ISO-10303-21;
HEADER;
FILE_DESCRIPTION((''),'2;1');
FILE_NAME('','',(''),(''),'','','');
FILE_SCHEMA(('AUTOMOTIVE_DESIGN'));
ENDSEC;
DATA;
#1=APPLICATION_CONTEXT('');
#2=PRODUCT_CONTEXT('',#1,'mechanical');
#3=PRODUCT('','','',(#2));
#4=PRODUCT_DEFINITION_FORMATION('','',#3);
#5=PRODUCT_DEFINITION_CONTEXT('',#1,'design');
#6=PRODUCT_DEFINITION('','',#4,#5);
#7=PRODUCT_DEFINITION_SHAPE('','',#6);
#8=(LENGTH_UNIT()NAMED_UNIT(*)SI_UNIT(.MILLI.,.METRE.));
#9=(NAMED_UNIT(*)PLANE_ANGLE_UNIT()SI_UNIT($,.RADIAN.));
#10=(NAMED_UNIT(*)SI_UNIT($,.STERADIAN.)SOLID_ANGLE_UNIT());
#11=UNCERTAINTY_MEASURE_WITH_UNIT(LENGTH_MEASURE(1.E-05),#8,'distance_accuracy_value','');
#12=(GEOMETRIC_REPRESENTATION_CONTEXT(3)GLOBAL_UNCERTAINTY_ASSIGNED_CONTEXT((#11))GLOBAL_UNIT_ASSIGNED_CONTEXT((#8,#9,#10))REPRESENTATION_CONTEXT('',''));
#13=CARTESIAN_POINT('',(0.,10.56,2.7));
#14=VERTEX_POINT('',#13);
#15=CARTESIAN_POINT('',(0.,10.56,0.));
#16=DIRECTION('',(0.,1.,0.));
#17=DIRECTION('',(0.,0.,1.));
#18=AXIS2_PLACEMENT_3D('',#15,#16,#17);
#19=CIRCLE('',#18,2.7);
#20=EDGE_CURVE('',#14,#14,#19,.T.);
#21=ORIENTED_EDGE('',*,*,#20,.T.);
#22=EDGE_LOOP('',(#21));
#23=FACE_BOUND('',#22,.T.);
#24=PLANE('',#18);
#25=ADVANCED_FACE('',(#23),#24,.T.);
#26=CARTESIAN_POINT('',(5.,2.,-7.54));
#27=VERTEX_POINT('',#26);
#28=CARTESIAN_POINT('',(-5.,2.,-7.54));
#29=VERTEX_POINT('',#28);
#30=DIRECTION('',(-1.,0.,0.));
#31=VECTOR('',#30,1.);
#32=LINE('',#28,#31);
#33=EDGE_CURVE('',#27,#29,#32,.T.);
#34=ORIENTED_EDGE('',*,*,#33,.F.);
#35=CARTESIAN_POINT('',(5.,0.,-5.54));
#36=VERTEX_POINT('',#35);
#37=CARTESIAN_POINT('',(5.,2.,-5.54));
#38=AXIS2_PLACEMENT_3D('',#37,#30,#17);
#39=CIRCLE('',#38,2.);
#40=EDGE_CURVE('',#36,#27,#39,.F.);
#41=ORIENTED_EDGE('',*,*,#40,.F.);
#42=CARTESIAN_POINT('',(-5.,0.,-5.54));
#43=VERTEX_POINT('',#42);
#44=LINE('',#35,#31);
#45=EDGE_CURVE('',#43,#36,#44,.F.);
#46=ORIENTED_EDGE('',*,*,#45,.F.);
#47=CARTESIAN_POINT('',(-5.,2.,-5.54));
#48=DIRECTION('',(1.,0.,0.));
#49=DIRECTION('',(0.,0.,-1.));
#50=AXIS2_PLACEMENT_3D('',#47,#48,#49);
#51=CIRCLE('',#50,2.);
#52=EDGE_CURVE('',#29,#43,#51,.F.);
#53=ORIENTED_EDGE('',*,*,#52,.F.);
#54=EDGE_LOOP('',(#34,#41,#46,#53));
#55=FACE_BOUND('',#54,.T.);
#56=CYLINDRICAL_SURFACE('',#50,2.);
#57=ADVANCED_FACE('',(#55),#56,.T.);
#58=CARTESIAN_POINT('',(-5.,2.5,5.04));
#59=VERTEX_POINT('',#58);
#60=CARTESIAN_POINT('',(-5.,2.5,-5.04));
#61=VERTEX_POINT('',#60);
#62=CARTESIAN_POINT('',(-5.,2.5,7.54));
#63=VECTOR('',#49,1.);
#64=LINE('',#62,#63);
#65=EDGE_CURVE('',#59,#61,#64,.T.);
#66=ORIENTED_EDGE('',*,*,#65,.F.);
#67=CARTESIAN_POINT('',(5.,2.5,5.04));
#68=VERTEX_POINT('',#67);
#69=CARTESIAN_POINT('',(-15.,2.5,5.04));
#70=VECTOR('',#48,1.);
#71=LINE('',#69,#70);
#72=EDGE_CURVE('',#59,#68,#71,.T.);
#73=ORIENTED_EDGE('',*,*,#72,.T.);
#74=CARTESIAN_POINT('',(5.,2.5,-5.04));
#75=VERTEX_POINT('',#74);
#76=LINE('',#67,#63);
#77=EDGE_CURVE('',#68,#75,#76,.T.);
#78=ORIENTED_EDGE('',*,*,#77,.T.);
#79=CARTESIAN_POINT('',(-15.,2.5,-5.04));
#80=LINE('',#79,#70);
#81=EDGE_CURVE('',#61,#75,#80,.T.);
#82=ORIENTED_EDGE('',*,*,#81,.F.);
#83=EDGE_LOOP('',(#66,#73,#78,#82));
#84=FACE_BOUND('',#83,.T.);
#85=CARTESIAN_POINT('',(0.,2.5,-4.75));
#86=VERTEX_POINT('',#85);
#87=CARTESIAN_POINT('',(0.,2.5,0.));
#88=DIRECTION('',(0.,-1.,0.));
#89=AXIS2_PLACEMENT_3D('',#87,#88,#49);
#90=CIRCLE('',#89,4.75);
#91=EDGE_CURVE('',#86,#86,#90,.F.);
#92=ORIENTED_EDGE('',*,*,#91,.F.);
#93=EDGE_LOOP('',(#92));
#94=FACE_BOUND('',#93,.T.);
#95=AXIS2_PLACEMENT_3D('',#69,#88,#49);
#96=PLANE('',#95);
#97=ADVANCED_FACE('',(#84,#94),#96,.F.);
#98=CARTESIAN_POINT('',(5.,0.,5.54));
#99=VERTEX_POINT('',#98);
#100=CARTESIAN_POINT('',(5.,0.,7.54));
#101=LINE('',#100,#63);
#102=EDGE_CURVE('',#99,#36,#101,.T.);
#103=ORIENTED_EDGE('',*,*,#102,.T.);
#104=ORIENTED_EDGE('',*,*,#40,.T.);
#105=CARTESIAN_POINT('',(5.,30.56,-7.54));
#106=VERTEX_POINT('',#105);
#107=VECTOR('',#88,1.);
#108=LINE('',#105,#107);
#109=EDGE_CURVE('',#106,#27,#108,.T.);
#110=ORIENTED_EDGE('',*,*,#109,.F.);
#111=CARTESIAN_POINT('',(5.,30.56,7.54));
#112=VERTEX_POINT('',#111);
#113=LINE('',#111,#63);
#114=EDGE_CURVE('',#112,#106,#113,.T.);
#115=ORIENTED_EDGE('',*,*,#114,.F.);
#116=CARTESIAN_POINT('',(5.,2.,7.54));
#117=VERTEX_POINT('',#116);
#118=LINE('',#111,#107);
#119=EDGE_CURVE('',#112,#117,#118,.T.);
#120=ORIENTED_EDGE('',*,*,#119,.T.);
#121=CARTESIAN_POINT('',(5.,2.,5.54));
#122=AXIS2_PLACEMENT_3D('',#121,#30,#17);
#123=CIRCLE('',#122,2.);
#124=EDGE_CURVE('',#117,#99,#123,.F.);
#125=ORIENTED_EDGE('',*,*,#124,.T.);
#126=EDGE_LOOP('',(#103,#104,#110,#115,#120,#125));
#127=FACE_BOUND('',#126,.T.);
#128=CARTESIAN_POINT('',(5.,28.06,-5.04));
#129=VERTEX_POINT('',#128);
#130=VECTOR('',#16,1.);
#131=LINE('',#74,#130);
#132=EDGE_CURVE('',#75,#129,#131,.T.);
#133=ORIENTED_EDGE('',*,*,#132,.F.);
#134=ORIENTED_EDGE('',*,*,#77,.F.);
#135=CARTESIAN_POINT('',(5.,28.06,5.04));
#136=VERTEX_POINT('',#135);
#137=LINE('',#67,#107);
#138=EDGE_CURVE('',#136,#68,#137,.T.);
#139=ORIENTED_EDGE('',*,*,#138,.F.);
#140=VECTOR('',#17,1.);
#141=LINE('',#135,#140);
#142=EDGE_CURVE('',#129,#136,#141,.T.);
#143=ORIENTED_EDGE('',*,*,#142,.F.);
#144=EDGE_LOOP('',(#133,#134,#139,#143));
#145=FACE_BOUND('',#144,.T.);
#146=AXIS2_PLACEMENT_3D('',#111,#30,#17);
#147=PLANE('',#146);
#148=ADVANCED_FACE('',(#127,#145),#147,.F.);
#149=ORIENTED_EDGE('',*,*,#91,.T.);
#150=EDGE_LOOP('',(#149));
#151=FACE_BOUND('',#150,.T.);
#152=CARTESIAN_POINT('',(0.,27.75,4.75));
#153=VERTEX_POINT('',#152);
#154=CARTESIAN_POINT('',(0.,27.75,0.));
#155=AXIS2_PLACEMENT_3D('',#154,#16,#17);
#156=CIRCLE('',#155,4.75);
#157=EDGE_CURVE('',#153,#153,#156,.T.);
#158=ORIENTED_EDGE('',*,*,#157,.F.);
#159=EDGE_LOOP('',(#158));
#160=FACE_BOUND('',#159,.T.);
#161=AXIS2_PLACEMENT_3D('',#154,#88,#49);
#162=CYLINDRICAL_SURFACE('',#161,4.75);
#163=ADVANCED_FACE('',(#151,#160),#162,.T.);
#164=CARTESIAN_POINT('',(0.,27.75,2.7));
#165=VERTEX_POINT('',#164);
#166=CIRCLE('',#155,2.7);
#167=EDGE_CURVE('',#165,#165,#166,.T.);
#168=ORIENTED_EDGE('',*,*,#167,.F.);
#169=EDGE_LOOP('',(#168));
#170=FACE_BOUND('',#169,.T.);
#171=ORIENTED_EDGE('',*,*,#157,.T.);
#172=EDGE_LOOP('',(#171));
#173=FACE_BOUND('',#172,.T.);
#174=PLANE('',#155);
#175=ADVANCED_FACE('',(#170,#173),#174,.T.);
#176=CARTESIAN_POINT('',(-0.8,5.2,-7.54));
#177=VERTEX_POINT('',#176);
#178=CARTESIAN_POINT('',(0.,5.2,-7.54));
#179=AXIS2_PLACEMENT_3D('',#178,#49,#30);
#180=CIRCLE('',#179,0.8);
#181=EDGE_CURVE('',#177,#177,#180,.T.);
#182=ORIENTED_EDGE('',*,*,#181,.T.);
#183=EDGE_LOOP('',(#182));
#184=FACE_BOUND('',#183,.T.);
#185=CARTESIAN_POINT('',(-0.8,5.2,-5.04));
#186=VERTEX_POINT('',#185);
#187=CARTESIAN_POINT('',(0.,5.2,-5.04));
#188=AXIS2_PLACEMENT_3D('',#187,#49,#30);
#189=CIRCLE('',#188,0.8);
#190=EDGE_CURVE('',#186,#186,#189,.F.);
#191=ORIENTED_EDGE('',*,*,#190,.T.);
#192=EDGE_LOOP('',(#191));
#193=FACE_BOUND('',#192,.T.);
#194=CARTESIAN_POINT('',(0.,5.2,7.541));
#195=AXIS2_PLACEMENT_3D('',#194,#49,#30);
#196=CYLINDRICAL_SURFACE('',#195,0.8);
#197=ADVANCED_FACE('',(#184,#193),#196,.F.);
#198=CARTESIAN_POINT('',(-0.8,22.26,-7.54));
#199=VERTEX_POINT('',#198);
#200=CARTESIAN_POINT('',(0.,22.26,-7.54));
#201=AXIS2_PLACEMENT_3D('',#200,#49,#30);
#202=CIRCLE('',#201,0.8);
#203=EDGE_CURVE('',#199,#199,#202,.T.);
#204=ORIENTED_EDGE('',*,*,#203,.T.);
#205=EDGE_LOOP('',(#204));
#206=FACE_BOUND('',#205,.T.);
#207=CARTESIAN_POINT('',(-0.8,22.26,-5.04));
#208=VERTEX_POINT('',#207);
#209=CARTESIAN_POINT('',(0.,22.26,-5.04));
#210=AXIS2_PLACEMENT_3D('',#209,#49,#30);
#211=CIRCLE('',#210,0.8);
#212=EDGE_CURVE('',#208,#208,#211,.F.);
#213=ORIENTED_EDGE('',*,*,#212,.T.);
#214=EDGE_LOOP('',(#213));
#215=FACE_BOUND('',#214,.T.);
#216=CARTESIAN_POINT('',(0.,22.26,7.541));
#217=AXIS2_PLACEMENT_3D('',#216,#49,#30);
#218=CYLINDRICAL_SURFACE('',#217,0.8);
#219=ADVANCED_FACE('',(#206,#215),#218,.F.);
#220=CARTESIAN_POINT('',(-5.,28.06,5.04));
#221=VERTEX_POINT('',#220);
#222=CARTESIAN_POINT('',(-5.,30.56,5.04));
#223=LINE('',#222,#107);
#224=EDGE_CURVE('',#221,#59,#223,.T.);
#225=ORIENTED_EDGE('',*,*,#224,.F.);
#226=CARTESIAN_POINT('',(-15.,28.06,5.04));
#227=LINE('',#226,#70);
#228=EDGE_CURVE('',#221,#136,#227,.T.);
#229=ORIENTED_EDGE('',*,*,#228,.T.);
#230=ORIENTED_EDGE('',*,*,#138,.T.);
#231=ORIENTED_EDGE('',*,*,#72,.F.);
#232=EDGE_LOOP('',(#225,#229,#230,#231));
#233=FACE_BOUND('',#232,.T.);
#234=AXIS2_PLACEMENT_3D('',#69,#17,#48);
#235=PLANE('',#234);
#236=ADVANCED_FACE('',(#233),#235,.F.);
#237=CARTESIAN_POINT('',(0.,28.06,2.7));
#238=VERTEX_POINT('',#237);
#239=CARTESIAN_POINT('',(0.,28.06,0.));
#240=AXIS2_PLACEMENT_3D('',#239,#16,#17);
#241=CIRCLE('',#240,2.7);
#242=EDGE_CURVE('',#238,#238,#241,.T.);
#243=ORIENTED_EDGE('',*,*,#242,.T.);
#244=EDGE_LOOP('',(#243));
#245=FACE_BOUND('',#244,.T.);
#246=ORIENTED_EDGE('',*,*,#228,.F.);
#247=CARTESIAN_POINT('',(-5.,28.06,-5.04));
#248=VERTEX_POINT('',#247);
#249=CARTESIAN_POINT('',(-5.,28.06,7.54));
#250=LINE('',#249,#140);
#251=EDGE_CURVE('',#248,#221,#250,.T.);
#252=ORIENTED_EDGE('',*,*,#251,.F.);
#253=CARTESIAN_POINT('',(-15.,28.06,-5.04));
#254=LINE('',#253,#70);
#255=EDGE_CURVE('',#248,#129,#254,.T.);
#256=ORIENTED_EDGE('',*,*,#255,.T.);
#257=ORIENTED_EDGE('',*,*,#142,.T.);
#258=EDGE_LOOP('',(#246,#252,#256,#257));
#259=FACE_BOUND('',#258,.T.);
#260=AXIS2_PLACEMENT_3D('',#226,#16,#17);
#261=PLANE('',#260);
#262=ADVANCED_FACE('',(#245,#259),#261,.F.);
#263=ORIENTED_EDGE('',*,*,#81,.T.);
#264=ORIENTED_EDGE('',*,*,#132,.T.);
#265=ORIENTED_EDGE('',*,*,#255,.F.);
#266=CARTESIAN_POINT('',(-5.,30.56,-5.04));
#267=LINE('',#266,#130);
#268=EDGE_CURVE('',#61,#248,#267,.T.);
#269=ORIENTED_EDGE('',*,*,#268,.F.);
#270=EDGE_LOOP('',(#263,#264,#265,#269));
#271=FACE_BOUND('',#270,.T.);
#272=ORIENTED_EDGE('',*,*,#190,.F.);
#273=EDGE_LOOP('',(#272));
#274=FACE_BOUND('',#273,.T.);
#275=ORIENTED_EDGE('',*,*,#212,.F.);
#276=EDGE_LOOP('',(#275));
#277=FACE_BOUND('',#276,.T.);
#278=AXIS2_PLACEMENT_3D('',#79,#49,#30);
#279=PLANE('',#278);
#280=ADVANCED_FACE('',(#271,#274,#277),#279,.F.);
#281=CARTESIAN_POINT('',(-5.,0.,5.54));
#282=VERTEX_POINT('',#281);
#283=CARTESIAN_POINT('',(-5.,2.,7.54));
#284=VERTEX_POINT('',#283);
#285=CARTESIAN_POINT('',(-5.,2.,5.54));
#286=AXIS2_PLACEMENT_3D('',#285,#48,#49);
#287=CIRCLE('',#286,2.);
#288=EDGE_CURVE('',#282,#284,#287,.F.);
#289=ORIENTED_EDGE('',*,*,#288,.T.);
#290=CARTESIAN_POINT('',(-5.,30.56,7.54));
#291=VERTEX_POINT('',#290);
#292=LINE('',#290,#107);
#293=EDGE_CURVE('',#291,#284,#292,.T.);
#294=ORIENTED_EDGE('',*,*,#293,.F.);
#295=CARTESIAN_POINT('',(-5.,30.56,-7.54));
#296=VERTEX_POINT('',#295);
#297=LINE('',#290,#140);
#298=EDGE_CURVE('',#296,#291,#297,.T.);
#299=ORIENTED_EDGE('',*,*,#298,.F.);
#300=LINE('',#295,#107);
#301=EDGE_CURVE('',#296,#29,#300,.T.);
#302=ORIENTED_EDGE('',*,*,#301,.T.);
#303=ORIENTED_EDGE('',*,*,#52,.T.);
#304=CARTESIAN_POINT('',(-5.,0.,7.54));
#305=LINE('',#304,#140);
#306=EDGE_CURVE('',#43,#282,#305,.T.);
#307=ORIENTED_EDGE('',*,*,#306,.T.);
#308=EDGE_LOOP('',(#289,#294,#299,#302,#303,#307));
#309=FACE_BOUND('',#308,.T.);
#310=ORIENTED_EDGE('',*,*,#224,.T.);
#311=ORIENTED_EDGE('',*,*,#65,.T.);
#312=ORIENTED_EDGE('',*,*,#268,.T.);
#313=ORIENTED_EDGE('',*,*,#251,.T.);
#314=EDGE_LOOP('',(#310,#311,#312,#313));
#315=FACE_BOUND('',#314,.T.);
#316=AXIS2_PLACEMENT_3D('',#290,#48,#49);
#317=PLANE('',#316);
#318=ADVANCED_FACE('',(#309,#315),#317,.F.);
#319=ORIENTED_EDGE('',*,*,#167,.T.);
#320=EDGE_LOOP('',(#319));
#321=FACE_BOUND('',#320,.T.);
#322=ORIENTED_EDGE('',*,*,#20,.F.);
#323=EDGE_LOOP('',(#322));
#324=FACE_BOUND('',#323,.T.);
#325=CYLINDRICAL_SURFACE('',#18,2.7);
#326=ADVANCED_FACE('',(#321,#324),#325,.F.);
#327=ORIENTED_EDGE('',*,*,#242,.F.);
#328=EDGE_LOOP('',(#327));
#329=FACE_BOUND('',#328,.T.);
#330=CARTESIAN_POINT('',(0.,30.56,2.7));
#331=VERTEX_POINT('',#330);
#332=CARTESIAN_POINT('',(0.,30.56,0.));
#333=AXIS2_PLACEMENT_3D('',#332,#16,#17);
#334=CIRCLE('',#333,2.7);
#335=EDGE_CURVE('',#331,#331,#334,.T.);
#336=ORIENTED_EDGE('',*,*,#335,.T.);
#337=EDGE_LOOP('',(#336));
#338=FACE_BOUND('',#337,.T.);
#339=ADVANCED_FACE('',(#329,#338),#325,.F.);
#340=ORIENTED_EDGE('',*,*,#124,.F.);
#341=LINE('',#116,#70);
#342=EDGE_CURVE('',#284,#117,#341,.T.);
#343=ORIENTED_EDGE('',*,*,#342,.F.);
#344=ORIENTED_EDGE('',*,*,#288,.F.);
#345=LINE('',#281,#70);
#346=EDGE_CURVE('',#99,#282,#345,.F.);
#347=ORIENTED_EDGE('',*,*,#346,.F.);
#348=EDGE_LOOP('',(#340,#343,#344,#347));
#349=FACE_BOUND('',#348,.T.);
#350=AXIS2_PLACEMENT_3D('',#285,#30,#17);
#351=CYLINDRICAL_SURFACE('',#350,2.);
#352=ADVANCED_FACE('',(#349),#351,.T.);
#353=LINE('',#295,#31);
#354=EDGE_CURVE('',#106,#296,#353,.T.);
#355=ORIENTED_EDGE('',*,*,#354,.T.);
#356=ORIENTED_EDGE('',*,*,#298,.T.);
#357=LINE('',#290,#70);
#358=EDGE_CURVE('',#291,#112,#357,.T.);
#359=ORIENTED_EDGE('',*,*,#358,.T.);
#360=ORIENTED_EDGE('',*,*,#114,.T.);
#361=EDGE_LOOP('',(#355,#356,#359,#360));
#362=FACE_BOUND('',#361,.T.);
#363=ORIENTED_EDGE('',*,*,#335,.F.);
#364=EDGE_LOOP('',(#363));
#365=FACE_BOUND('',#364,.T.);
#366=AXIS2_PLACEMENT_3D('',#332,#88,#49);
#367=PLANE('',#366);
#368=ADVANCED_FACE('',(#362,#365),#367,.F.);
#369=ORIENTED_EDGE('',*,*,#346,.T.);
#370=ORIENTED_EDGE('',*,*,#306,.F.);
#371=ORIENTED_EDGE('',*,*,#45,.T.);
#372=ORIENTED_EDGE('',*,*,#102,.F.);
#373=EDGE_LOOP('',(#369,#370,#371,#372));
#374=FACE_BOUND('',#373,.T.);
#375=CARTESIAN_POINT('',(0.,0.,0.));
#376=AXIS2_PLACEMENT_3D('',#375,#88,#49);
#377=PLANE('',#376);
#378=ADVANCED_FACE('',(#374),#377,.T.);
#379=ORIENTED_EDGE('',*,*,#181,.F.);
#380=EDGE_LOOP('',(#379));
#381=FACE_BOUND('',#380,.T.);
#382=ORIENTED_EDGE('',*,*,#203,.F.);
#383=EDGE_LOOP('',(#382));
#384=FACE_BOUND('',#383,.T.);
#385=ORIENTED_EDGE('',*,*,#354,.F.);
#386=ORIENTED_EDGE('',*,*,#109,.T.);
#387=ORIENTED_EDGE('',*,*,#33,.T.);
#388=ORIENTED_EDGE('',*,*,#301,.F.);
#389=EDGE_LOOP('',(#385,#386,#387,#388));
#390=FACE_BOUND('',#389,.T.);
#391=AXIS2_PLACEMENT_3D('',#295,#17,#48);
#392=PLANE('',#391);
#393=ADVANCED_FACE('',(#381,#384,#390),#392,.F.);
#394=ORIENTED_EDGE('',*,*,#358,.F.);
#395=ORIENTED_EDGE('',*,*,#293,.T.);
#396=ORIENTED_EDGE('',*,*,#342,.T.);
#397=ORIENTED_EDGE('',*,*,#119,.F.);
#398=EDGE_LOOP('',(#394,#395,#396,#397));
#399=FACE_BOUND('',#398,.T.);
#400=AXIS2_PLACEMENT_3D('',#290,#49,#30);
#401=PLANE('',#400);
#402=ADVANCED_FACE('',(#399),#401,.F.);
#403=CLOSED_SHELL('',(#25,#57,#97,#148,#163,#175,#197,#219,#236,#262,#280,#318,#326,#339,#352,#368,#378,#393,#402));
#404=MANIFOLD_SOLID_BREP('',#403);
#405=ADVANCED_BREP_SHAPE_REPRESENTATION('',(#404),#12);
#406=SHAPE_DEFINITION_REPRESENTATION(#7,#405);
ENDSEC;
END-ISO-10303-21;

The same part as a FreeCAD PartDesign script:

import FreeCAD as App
import Part
import Sketcher
from FreeCAD import Vector


def edges_at(feature, points):
    """Names of the edges that pass closest to the given points."""
    edges = feature.Shape.Edges
    near = lambda p: min(range(len(edges)), key=lambda i: edges[i].distToShape(Part.Vertex(*p))[0])
    return sorted({f"Edge{near(p) + 1}" for p in points})


def add_polygon(sketch, points):
    """Adds a closed chain of lines whose ends are joined by coincident constraints."""
    first, n = sketch.GeometryCount, len(points)
    for a, b in zip(points, points[1:] + points[:1]):
        sketch.addGeometry(Part.LineSegment(App.Vector(*a, 0), App.Vector(*b, 0)), False)
    for i in range(n):
        sketch.addConstraint(Sketcher.Constraint("Coincident", first + i, 2, first + (i + 1) % n, 1))

doc = App.newDocument("Part")
params = doc.addObject("Spreadsheet::Sheet", "Params")
for row, (alias, value) in enumerate([
    ("sketch1_width", "10 mm"),
    ("sketch1_height", "15.08 mm"),
    ("pad1_length", "30.56 mm"),
    ("sketch2_width", "25.56 mm"),
    ("sketch2_height", "10.08 mm"),
    ("pocket1_length", "20 mm"),
    ("sketch3_diameter", "9.5 mm"),
    ("pad2_length", "25.25 mm"),
    ("sketch4_diameter", "5.4 mm"),
    ("pocket2_length", "20 mm"),
    ("fillet_radius", "2 mm"),
    ("sketch5_diameter", "1.6 mm"),
    ("sketch6_diameter", "1.6 mm"),
], start=1):
    params.set(f"A{row}", alias)
    params.set(f"B{row}", "=" + value)
    params.setAlias(f"B{row}", alias)

body = doc.addObject("PartDesign::Body", "Body")

sketch1 = body.newObject("Sketcher::SketchObject", "Sketch")
sketch1.AttachmentSupport = (doc.getObject("XZ_Plane"), [""])
sketch1.MapMode = "FlatFace"
add_polygon(sketch1, [(-5, -8), (-5, 8), (5, 8), (5, -8)])
sketch1.addConstraint([
    Sketcher.Constraint("Vertical", 0),
    Sketcher.Constraint("Horizontal", 1),
    Sketcher.Constraint("Vertical", 2),
    Sketcher.Constraint("Horizontal", 3),
    Sketcher.Constraint("Symmetric", 0, 2, 2, 2, -1, 1),
    Sketcher.Constraint("DistanceX", 1, 1, 1, 2, 10.0),
    Sketcher.Constraint("DistanceY", 0, 1, 0, 2, 15.08),
])
sketch1.setExpression("Constraints[9]", "Params.sketch1_width")
sketch1.setExpression("Constraints[10]", "Params.sketch1_height")
pad1 = body.newObject("PartDesign::Pad", "Pad")
pad1.Profile = sketch1
pad1.setExpression("Length", "Params.pad1_length")
pad1.Reversed = True

sketch2 = body.newObject("Sketcher::SketchObject", "Sketch001")
sketch2.AttachmentSupport = (doc.getObject("YZ_Plane"), [""])
sketch2.MapMode = "FlatFace"
sketch2.AttachmentOffset = App.Placement(Vector(0, 0, 5), App.Rotation())
add_polygon(sketch2, [(28, 5), (2, 5), (2, -5), (28, -5)])
sketch2.addConstraint([
    Sketcher.Constraint("Horizontal", 0),
    Sketcher.Constraint("Vertical", 1),
    Sketcher.Constraint("Horizontal", 2),
    Sketcher.Constraint("Vertical", 3),
    Sketcher.Constraint("DistanceX", 0, 2, 0, 1, 25.56),
    Sketcher.Constraint("DistanceY", 1, 2, 1, 1, 10.08),
    Sketcher.Constraint("DistanceX", -1, 1, 0, 2, 2.5),
    Sketcher.Constraint("DistanceY", -1, 1, 0, 2, 5.04),
])
sketch2.setExpression("Constraints[8]", "Params.sketch2_width")
sketch2.setExpression("Constraints[9]", "Params.sketch2_height")
pocket1 = body.newObject("PartDesign::Pocket", "Pocket")
pocket1.Profile = sketch2
pocket1.setExpression("Length", "Params.pocket1_length")

sketch3 = body.newObject("Sketcher::SketchObject", "Sketch002")
sketch3.AttachmentSupport = (doc.getObject("XZ_Plane"), [""])
sketch3.MapMode = "FlatFace"
sketch3.AttachmentOffset = App.Placement(Vector(0, 0, -2.5), App.Rotation())
sketch3.addGeometry(Part.Circle(Vector(0, 0, 0), Vector(0, 0, 1), 4.8), False)
sketch3.addConstraint([
    Sketcher.Constraint("Coincident", 0, 3, -1, 1),
    Sketcher.Constraint("Diameter", 0, 9.5),
])
sketch3.setExpression("Constraints[1]", "Params.sketch3_diameter")
pad2 = body.newObject("PartDesign::Pad", "Pad001")
pad2.Profile = sketch3
pad2.setExpression("Length", "Params.pad2_length")
pad2.Reversed = True

sketch4 = body.newObject("Sketcher::SketchObject", "Sketch003")
sketch4.AttachmentSupport = (doc.getObject("XZ_Plane"), [""])
sketch4.MapMode = "FlatFace"
sketch4.AttachmentOffset = App.Placement(Vector(0, 0, -30.56), App.Rotation())
sketch4.addGeometry(Part.Circle(Vector(0, 0, 0), Vector(0, 0, 1), 2.7), False)
sketch4.addConstraint([
    Sketcher.Constraint("Coincident", 0, 3, -1, 1),
    Sketcher.Constraint("Diameter", 0, 5.4),
])
sketch4.setExpression("Constraints[1]", "Params.sketch4_diameter")
pocket2 = body.newObject("PartDesign::Pocket", "Pocket001")
pocket2.Profile = sketch4
pocket2.setExpression("Length", "Params.pocket2_length")
pocket2.Reversed = True
doc.recompute()

fillet = body.newObject("PartDesign::Fillet", "Fillet")
fillet.Base = (pocket2, edges_at(pocket2, [(0, 0, 7.54), (0, 0, -7.54)]))
fillet.setExpression("Radius", "Params.fillet_radius")

sketch5 = body.newObject("Sketcher::SketchObject", "Sketch004")
sketch5.AttachmentSupport = (doc.getObject("XY_Plane"), [""])
sketch5.MapMode = "FlatFace"
sketch5.AttachmentOffset = App.Placement(Vector(0, 0, -7.54), App.Rotation())
sketch5.addGeometry(Part.Circle(Vector(0, 22.3, 0), Vector(0, 0, 1), 0.8), False)
sketch5.addConstraint([
    Sketcher.Constraint("PointOnObject", 0, 3, -2),
    Sketcher.Constraint("Diameter", 0, 1.6),
    Sketcher.Constraint("DistanceY", -1, 1, 0, 3, 22.26),
])
sketch5.setExpression("Constraints[1]", "Params.sketch5_diameter")
pocket3 = body.newObject("PartDesign::Pocket", "Pocket002")
pocket3.Profile = sketch5
pocket3.Type = "UpToFirst"
pocket3.Reversed = True

sketch6 = body.newObject("Sketcher::SketchObject", "Sketch005")
sketch6.AttachmentSupport = (doc.getObject("XY_Plane"), [""])
sketch6.MapMode = "FlatFace"
sketch6.AttachmentOffset = App.Placement(Vector(0, 0, -7.54), App.Rotation())
sketch6.addGeometry(Part.Circle(Vector(0, 5.2, 0), Vector(0, 0, 1), 0.8), False)
sketch6.addConstraint([
    Sketcher.Constraint("PointOnObject", 0, 3, -2),
    Sketcher.Constraint("Diameter", 0, 1.6),
    Sketcher.Constraint("DistanceY", -1, 1, 0, 3, 5.2),
])
sketch6.setExpression("Constraints[1]", "Params.sketch6_diameter")
pocket4 = body.newObject("PartDesign::Pocket", "Pocket003")
pocket4.Profile = sketch6
pocket4.Type = "UpToFirst"
pocket4.Reversed = True

doc.recompute()
